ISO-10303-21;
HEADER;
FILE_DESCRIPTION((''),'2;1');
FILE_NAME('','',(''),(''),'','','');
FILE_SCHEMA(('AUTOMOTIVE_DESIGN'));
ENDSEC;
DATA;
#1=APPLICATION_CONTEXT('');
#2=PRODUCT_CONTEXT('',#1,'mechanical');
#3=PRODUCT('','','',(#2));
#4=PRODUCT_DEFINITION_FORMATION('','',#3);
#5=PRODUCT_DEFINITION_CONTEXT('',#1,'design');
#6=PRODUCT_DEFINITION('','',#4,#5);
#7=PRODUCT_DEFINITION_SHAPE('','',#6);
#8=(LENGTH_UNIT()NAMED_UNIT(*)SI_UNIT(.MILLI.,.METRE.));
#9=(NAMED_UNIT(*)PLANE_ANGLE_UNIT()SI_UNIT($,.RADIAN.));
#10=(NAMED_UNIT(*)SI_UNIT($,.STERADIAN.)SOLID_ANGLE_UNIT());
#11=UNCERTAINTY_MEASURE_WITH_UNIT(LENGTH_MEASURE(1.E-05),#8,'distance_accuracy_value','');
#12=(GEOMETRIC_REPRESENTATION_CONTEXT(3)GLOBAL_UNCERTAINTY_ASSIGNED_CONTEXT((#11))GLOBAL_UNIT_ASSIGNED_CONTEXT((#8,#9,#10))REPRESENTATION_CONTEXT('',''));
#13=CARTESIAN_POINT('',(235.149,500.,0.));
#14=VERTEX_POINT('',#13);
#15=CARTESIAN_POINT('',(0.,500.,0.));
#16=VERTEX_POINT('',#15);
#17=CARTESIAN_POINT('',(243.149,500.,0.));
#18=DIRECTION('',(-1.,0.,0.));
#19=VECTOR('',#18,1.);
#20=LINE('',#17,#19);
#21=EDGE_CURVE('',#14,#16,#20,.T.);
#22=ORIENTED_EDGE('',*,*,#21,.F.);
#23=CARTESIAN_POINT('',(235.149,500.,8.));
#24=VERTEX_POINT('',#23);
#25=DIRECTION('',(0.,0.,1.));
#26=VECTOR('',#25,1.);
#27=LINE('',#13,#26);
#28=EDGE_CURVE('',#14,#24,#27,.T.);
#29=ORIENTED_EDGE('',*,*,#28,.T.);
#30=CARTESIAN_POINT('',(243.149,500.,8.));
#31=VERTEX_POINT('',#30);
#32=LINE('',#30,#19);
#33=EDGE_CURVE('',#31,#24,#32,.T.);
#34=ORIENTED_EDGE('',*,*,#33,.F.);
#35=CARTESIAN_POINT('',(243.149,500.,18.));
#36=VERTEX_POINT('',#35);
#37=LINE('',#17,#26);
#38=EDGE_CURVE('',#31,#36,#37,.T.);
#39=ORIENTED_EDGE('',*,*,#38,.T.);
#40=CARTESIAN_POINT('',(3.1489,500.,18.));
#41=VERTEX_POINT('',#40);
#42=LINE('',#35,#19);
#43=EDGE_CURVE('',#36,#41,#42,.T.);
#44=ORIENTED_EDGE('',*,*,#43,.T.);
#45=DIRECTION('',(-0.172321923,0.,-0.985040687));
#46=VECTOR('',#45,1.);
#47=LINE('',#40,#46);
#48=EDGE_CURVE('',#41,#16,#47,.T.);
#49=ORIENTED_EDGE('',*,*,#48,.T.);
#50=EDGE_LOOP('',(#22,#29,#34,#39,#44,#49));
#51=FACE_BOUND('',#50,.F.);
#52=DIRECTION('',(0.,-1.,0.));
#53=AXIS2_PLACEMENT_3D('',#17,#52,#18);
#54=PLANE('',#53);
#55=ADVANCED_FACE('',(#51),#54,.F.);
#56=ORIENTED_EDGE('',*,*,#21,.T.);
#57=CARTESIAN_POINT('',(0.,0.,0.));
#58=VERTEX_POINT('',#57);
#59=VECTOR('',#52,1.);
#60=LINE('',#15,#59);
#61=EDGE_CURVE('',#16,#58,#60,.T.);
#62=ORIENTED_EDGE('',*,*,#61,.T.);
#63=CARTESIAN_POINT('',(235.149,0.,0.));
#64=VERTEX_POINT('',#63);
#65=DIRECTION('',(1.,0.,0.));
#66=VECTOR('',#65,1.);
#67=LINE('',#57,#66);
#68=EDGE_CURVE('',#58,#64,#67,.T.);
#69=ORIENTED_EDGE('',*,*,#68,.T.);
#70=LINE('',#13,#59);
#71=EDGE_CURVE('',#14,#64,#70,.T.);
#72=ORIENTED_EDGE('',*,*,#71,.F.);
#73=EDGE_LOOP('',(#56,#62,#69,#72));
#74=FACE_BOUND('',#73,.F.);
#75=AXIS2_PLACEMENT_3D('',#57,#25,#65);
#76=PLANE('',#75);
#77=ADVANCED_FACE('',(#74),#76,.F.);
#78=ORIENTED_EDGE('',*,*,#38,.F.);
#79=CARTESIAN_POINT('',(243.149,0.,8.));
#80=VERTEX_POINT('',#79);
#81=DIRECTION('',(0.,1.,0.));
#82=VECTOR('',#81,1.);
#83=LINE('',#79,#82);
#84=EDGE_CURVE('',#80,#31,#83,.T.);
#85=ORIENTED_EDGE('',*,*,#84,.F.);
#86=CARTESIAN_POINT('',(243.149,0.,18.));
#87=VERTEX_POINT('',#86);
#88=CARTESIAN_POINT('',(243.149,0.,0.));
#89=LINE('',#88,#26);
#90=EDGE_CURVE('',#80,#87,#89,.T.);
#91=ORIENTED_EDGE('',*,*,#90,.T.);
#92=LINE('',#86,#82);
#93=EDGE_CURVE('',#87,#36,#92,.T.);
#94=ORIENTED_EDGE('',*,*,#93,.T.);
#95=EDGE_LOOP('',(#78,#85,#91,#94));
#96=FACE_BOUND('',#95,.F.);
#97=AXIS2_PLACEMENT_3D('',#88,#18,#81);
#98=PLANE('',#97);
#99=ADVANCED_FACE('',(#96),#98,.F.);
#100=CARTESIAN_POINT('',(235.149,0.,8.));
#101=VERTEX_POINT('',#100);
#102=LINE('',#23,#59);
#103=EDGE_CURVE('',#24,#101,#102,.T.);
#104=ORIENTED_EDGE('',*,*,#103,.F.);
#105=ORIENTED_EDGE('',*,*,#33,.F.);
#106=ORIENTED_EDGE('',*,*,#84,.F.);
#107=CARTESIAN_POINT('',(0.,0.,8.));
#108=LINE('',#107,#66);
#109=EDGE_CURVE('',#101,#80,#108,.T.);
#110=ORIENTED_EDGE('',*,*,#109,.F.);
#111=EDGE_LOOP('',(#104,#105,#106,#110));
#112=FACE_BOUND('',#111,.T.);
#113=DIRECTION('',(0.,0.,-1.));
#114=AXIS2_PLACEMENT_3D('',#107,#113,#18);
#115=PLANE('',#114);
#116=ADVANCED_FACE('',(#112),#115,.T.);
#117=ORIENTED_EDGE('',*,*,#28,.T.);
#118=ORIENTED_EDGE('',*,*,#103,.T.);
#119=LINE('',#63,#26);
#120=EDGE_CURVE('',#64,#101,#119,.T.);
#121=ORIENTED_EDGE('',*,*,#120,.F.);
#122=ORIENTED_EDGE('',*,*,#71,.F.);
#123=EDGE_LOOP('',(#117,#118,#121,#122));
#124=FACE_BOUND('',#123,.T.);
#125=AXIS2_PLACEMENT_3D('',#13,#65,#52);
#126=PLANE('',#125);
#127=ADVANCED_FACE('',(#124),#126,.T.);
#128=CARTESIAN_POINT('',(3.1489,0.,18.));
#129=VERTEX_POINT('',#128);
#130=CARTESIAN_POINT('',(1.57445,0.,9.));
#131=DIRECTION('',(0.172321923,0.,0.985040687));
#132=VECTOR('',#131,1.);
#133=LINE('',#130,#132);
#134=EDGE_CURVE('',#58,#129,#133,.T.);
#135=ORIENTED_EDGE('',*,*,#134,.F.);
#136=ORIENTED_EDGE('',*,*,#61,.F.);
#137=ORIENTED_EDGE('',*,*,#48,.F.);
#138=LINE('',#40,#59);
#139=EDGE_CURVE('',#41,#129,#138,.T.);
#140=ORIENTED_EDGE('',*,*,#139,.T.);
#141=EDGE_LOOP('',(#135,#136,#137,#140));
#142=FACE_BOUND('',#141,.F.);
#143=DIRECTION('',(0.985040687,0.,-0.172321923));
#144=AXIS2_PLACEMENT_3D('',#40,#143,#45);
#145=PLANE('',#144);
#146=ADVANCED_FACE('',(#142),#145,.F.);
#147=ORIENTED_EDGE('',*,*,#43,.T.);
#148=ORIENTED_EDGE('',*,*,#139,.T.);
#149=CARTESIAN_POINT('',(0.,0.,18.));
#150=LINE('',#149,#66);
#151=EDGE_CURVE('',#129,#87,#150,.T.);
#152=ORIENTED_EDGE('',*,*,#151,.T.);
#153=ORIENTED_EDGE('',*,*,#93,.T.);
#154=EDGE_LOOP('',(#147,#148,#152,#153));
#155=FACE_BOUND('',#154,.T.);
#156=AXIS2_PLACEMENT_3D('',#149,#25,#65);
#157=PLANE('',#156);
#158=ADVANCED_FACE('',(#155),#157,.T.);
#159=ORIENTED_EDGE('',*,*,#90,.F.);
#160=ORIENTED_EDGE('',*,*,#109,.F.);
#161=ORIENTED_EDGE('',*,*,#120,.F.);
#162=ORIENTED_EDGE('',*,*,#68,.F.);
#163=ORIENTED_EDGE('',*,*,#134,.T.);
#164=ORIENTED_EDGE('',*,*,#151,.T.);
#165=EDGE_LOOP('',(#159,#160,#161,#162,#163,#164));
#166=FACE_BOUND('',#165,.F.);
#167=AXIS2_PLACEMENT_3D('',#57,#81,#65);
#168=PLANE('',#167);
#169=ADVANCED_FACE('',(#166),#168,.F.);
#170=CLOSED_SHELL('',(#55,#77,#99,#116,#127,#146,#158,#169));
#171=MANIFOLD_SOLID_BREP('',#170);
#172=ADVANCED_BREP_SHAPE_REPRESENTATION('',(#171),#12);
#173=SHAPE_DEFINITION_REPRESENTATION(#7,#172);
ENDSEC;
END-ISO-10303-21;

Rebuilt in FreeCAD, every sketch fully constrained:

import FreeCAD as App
import Part
import Sketcher


def add_polygon(sketch, points):
    """Adds a closed chain of lines whose ends are joined by coincident constraints."""
    first, n = sketch.GeometryCount, len(points)
    for a, b in zip(points, points[1:] + points[:1]):
        sketch.addGeometry(Part.LineSegment(App.Vector(*a, 0), App.Vector(*b, 0)), False)
    for i in range(n):
        sketch.addConstraint(Sketcher.Constraint("Coincident", first + i, 2, first + (i + 1) % n, 1))

doc = App.newDocument("Part")
body = doc.addObject("PartDesign::Body", "Body")

sketch1 = body.newObject("Sketcher::SketchObject", "Sketch")
sketch1.AttachmentSupport = (doc.getObject("XY_Plane"), [""])
sketch1.MapMode = "FlatFace"
add_polygon(sketch1, [(0, 500), (0, 0), (243, 0), (243, 500)])
sketch1.addConstraint(Sketcher.Constraint("Vertical", 0))
sketch1.addConstraint(Sketcher.Constraint("Horizontal", 1))
sketch1.addConstraint(Sketcher.Constraint("Vertical", 2))
sketch1.addConstraint(Sketcher.Constraint("Horizontal", 3))
sketch1.addConstraint(Sketcher.Constraint("Coincident", 0, 2, -1, 1))
sketch1.addConstraint(Sketcher.Constraint("DistanceY", 0, 2, 0, 1, 500.0))
sketch1.addConstraint(Sketcher.Constraint("DistanceX", 1, 1, 1, 2, 243.149))
pad1 = body.newObject("PartDesign::Pad", "Pad")
pad1.Profile = sketch1
pad1.Length = 18

sketch2 = body.newObject("Sketcher::SketchObject", "Sketch001")
sketch2.AttachmentSupport = (doc.getObject("XY_Plane"), [""])
sketch2.MapMode = "FlatFace"
add_polygon(sketch2, [(243, 0), (235, 0), (235, 500), (243, 500)])
sketch2.addConstraint(Sketcher.Constraint("Horizontal", 0))
sketch2.addConstraint(Sketcher.Constraint("Vertical", 1))
sketch2.addConstraint(Sketcher.Constraint("Horizontal", 2))
sketch2.addConstraint(Sketcher.Constraint("Vertical", 3))
sketch2.addConstraint(Sketcher.Constraint("PointOnObject", 0, 2, -1))
sketch2.addConstraint(Sketcher.Constraint("DistanceX", 0, 2, 0, 1, 8.0))
sketch2.addConstraint(Sketcher.Constraint("DistanceY", 1, 1, 1, 2, 500.0))
sketch2.addConstraint(Sketcher.Constraint("DistanceX", -1, 1, 0, 2, 235.149))
pocket1 = body.newObject("PartDesign::Pocket", "Pocket")
pocket1.Profile = sketch2
pocket1.Length = 8
pocket1.Reversed = True

sketch3 = body.newObject("Sketcher::SketchObject", "Sketch002")
sketch3.AttachmentSupport = (doc.getObject("XZ_Plane"), [""])
sketch3.MapMode = "FlatFace"
sketch3.AttachmentOffset = App.Placement(App.Vector(0, 0, -500), App.Rotation())
add_polygon(sketch3, [(3.1, 18), (0, 0), (0, 18)])
sketch3.addConstraint(Sketcher.Constraint("Vertical", 1))
sketch3.addConstraint(Sketcher.Constraint("Horizontal", 2))
sketch3.addConstraint(Sketcher.Constraint("Coincident", 0, 2, -1, 1))
sketch3.addConstraint(Sketcher.Constraint("DistanceY", 1, 1, 1, 2, 18.0))
sketch3.addConstraint(Sketcher.Constraint("DistanceX", 2, 1, 2, 2, 3.149))
pocket2 = body.newObject("PartDesign::Pocket", "Pocket001")
pocket2.Profile = sketch3
pocket2.Type = "UpToFirst"
pocket2.Reversed = True

doc.recompute()
